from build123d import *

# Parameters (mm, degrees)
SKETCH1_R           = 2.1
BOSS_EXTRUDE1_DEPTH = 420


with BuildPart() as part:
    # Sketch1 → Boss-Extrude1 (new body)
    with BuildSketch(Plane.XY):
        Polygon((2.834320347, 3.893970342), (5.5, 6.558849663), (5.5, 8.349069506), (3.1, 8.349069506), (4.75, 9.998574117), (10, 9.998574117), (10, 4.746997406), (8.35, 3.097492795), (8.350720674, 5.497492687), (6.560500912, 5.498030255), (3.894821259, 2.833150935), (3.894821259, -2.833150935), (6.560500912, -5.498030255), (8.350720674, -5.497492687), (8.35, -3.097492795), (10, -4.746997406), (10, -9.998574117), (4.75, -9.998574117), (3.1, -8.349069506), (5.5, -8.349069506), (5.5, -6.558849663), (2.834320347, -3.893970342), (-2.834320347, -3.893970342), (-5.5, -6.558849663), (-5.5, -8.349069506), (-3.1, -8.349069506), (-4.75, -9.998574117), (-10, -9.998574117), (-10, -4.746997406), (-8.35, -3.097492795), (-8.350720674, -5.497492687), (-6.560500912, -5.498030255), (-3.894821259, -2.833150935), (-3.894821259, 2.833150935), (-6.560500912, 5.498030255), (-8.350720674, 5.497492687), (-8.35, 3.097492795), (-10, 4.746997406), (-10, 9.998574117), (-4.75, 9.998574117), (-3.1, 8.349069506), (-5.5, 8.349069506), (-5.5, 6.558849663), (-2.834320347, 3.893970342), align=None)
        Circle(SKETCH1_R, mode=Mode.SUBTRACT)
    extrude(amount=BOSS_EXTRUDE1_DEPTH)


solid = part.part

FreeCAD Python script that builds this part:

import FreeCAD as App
import Part
import Sketcher

doc = App.newDocument("Part")
body = doc.addObject("PartDesign::Body", "Body")

# Sketch on XY plane
sketch1 = body.newObject("Sketcher::SketchObject", "Sketch")
sketch1.AttachmentSupport = (doc.getObject("XY_Plane"), [""])
sketch1.MapMode = "FlatFace"
sketch1.addGeometry(Part.LineSegment(App.Vector(5.5, 6.6, 0), App.Vector(2.8, 3.9, 0)), False)
sketch1.addGeometry(Part.LineSegment(App.Vector(2.8, 3.9, 0), App.Vector(-2.8, 3.9, 0)), False)
sketch1.addGeometry(Part.LineSegment(App.Vector(-2.8, 3.9, 0), App.Vector(-5.5, 6.6, 0)), False)
sketch1.addGeometry(Part.LineSegment(App.Vector(-5.5, 6.6, 0), App.Vector(-5.5, 8.3, 0)), False)
sketch1.addGeometry(Part.LineSegment(App.Vector(-5.5, 8.3, 0), App.Vector(-3.1, 8.3, 0)), False)
sketch1.addGeometry(Part.LineSegment(App.Vector(-3.1, 8.3, 0), App.Vector(-4.8, 10, 0)), False)
sketch1.addGeometry(Part.LineSegment(App.Vector(-4.8, 10, 0), App.Vector(-10, 10, 0)), False)
sketch1.addGeometry(Part.LineSegment(App.Vector(-10, 10, 0), App.Vector(-10, 4.7, 0)), False)
sketch1.addGeometry(Part.LineSegment(App.Vector(-10, 4.7, 0), App.Vector(-8.3, 3.1, 0)), False)
sketch1.addGeometry(Part.LineSegment(App.Vector(-8.3, 3.1, 0), App.Vector(-8.4, 5.5, 0)), False)
sketch1.addGeometry(Part.LineSegment(App.Vector(-8.4, 5.5, 0), App.Vector(-6.6, 5.5, 0)), False)
sketch1.addGeometry(Part.LineSegment(App.Vector(-6.6, 5.5, 0), App.Vector(-3.9, 2.8, 0)), False)
sketch1.addGeometry(Part.LineSegment(App.Vector(-3.9, 2.8, 0), App.Vector(-3.9, -2.8, 0)), False)
sketch1.addGeometry(Part.LineSegment(App.Vector(-3.9, -2.8, 0), App.Vector(-6.6, -5.5, 0)), False)
sketch1.addGeometry(Part.LineSegment(App.Vector(-6.6, -5.5, 0), App.Vector(-8.4, -5.5, 0)), False)
sketch1.addGeometry(Part.LineSegment(App.Vector(-8.4, -5.5, 0), App.Vector(-8.3, -3.1, 0)), False)
sketch1.addGeometry(Part.LineSegment(App.Vector(-8.3, -3.1, 0), App.Vector(-10, -4.7, 0)), False)
sketch1.addGeometry(Part.LineSegment(App.Vector(-10, -4.7, 0), App.Vector(-10, -10, 0)), False)
sketch1.addGeometry(Part.LineSegment(App.Vector(-10, -10, 0), App.Vector(-4.8, -10, 0)), False)
sketch1.addGeometry(Part.LineSegment(App.Vector(-4.8, -10, 0), App.Vector(-3.1, -8.3, 0)), False)
sketch1.addGeometry(Part.LineSegment(App.Vector(-3.1, -8.3, 0), App.Vector(-5.5, -8.3, 0)), False)
sketch1.addGeometry(Part.LineSegment(App.Vector(-5.5, -8.3, 0), App.Vector(-5.5, -6.6, 0)), False)
sketch1.addGeometry(Part.LineSegment(App.Vector(-5.5, -6.6, 0), App.Vector(-2.8, -3.9, 0)), False)
sketch1.addGeometry(Part.LineSegment(App.Vector(-2.8, -3.9, 0), App.Vector(2.8, -3.9, 0)), False)
sketch1.addGeometry(Part.LineSegment(App.Vector(2.8, -3.9, 0), App.Vector(5.5, -6.6, 0)), False)
sketch1.addGeometry(Part.LineSegment(App.Vector(5.5, -6.6, 0), App.Vector(5.5, -8.3, 0)), False)
sketch1.addGeometry(Part.LineSegment(App.Vector(5.5, -8.3, 0), App.Vector(3.1, -8.3, 0)), False)
sketch1.addGeometry(Part.LineSegment(App.Vector(3.1, -8.3, 0), App.Vector(4.8, -10, 0)), False)
sketch1.addGeometry(Part.LineSegment(App.Vector(4.8, -10, 0), App.Vector(10, -10, 0)), False)
sketch1.addGeometry(Part.LineSegment(App.Vector(10, -10, 0), App.Vector(10, -4.7, 0)), False)
sketch1.addGeometry(Part.LineSegment(App.Vector(10, -4.7, 0), App.Vector(8.3, -3.1, 0)), False)
sketch1.addGeometry(Part.LineSegment(App.Vector(8.3, -3.1, 0), App.Vector(8.4, -5.5, 0)), False)
sketch1.addGeometry(Part.LineSegment(App.Vector(8.4, -5.5, 0), App.Vector(6.6, -5.5, 0)), False)
sketch1.addGeometry(Part.LineSegment(App.Vector(6.6, -5.5, 0), App.Vector(3.9, -2.8, 0)), False)
sketch1.addGeometry(Part.LineSegment(App.Vector(3.9, -2.8, 0), App.Vector(3.9, 2.8, 0)), False)
sketch1.addGeometry(Part.LineSegment(App.Vector(3.9, 2.8, 0), App.Vector(6.6, 5.5, 0)), False)
sketch1.addGeometry(Part.LineSegment(App.Vector(6.6, 5.5, 0), App.Vector(8.4, 5.5, 0)), False)
sketch1.addGeometry(Part.LineSegment(App.Vector(8.4, 5.5, 0), App.Vector(8.3, 3.1, 0)), False)
sketch1.addGeometry(Part.LineSegment(App.Vector(8.3, 3.1, 0), App.Vector(10, 4.7, 0)), False)
sketch1.addGeometry(Part.LineSegment(App.Vector(10, 4.7, 0), App.Vector(10, 10, 0)), False)
sketch1.addGeometry(Part.LineSegment(App.Vector(10, 10, 0), App.Vector(4.8, 10, 0)), False)
sketch1.addGeometry(Part.LineSegment(App.Vector(4.8, 10, 0), App.Vector(3.1, 8.3, 0)), False)
sketch1.addGeometry(Part.LineSegment(App.Vector(3.1, 8.3, 0), App.Vector(5.5, 8.3, 0)), False)
sketch1.addGeometry(Part.LineSegment(App.Vector(5.5, 8.3, 0), App.Vector(5.5, 6.6, 0)), False)
sketch1.addGeometry(Part.Circle(App.Vector(0, 0, 0), App.Vector(0, 0, 1), 2.1), False)
sketch1.addConstraint(Sketcher.Constraint("Coincident", 0, 2, 1, 1))
sketch1.addConstraint(Sketcher.Constraint("Coincident", 1, 2, 2, 1))
sketch1.addConstraint(Sketcher.Constraint("Coincident", 2, 2, 3, 1))
sketch1.addConstraint(Sketcher.Constraint("Coincident", 3, 2, 4, 1))
sketch1.addConstraint(Sketcher.Constraint("Coincident", 4, 2, 5, 1))
sketch1.addConstraint(Sketcher.Constraint("Coincident", 5, 2, 6, 1))
sketch1.addConstraint(Sketcher.Constraint("Coincident", 6, 2, 7, 1))
sketch1.addConstraint(Sketcher.Constraint("Coincident", 7, 2, 8, 1))
sketch1.addConstraint(Sketcher.Constraint("Coincident", 8, 2, 9, 1))
sketch1.addConstraint(Sketcher.Constraint("Coincident", 9, 2, 10, 1))
sketch1.addConstraint(Sketcher.Constraint("Coincident", 10, 2, 11, 1))
sketch1.addConstraint(Sketcher.Constraint("Coincident", 11, 2, 12, 1))
sketch1.addConstraint(Sketcher.Constraint("Coincident", 12, 2, 13, 1))
sketch1.addConstraint(Sketcher.Constraint("Coincident", 13, 2, 14, 1))
sketch1.addConstraint(Sketcher.Constraint("Coincident", 14, 2, 15, 1))
sketch1.addConstraint(Sketcher.Constraint("Coincident", 15, 2, 16, 1))
sketch1.addConstraint(Sketcher.Constraint("Coincident", 16, 2, 17, 1))
sketch1.addConstraint(Sketcher.Constraint("Coincident", 17, 2, 18, 1))
sketch1.addConstraint(Sketcher.Constraint("Coincident", 18, 2, 19, 1))
sketch1.addConstraint(Sketcher.Constraint("Coincident", 19, 2, 20, 1))
sketch1.addConstraint(Sketcher.Constraint("Coincident", 20, 2, 21, 1))
sketch1.addConstraint(Sketcher.Constraint("Coincident", 21, 2, 22, 1))
sketch1.addConstraint(Sketcher.Constraint("Coincident", 22, 2, 23, 1))
sketch1.addConstraint(Sketcher.Constraint("Coincident", 23, 2, 24, 1))
sketch1.addConstraint(Sketcher.Constraint("Coincident", 24, 2, 25, 1))
sketch1.addConstraint(Sketcher.Constraint("Coincident", 25, 2, 26, 1))
sketch1.addConstraint(Sketcher.Constraint("Coincident", 26, 2, 27, 1))
sketch1.addConstraint(Sketcher.Constraint("Coincident", 27, 2, 28, 1))
sketch1.addConstraint(Sketcher.Constraint("Coincident", 28, 2, 29, 1))
sketch1.addConstraint(Sketcher.Constraint("Coincident", 29, 2, 30, 1))
sketch1.addConstraint(Sketcher.Constraint("Coincident", 30, 2, 31, 1))
sketch1.addConstraint(Sketcher.Constraint("Coincident", 31, 2, 32, 1))
sketch1.addConstraint(Sketcher.Constraint("Coincident", 32, 2, 33, 1))
sketch1.addConstraint(Sketcher.Constraint("Coincident", 33, 2, 34, 1))
sketch1.addConstraint(Sketcher.Constraint("Coincident", 34, 2, 35, 1))
sketch1.addConstraint(Sketcher.Constraint("Coincident", 35, 2, 36, 1))
sketch1.addConstraint(Sketcher.Constraint("Coincident", 36, 2, 37, 1))
sketch1.addConstraint(Sketcher.Constraint("Coincident", 37, 2, 38, 1))
sketch1.addConstraint(Sketcher.Constraint("Coincident", 38, 2, 39, 1))
sketch1.addConstraint(Sketcher.Constraint("Coincident", 39, 2, 40, 1))
sketch1.addConstraint(Sketcher.Constraint("Coincident", 40, 2, 41, 1))
sketch1.addConstraint(Sketcher.Constraint("Coincident", 41, 2, 42, 1))
sketch1.addConstraint(Sketcher.Constraint("Coincident", 42, 2, 43, 1))
sketch1.addConstraint(Sketcher.Constraint("Coincident", 43, 2, 0, 1))
sketch1.addConstraint(Sketcher.Constraint("Horizontal", 1))
sketch1.addConstraint(Sketcher.Constraint("Vertical", 3))
sketch1.addConstraint(Sketcher.Constraint("Horizontal", 4))
sketch1.addConstraint(Sketcher.Constraint("Horizontal", 6))
sketch1.addConstraint(Sketcher.Constraint("Vertical", 7))
sketch1.addConstraint(Sketcher.Constraint("Vertical", 12))
sketch1.addConstraint(Sketcher.Constraint("Vertical", 17))
sketch1.addConstraint(Sketcher.Constraint("Horizontal", 18))
sketch1.addConstraint(Sketcher.Constraint("Horizontal", 20))
sketch1.addConstraint(Sketcher.Constraint("Vertical", 21))
sketch1.addConstraint(Sketcher.Constraint("Horizontal", 23))
sketch1.addConstraint(Sketcher.Constraint("Vertical", 25))
sketch1.addConstraint(Sketcher.Constraint("Horizontal", 26))
sketch1.addConstraint(Sketcher.Constraint("Horizontal", 28))
sketch1.addConstraint(Sketcher.Constraint("Vertical", 29))
sketch1.addConstraint(Sketcher.Constraint("Vertical", 34))
sketch1.addConstraint(Sketcher.Constraint("Vertical", 39))
sketch1.addConstraint(Sketcher.Constraint("Horizontal", 40))
sketch1.addConstraint(Sketcher.Constraint("Horizontal", 42))
sketch1.addConstraint(Sketcher.Constraint("Vertical", 43))
sketch1.addConstraint(Sketcher.Constraint("Coincident", 44, 3, -1, 1))
sketch1.addConstraint(Sketcher.Constraint("Symmetric", 0, 2, 22, 2, -1, 1))
sketch1.addConstraint(Sketcher.Constraint("Symmetric", 2, 2, 24, 2, -1, 1))
sketch1.addConstraint(Sketcher.Constraint("Symmetric", 4, 2, 26, 2, -1, 1))
sketch1.addConstraint(Sketcher.Constraint("Symmetric", 5, 2, 27, 2, -1, 1))
sketch1.addConstraint(Sketcher.Constraint("Symmetric", 7, 2, 29, 2, -1, 1))
sketch1.addConstraint(Sketcher.Constraint("Symmetric", 8, 2, 30, 2, -1, 1))
sketch1.addConstraint(Sketcher.Constraint("Symmetric", 9, 2, 31, 2, -1, 1))
sketch1.addConstraint(Sketcher.Constraint("Symmetric", 10, 2, 32, 2, -1, 1))
sketch1.addConstraint(Sketcher.Constraint("Symmetric", 11, 2, 33, 2, -1, 1))
sketch1.addConstraint(Sketcher.Constraint("Symmetric", 13, 2, 35, 2, -1, 1))
sketch1.addConstraint(Sketcher.Constraint("Symmetric", 14, 2, 36, 2, -1, 1))
sketch1.addConstraint(Sketcher.Constraint("Symmetric", 15, 2, 37, 2, -1, 1))
sketch1.addConstraint(Sketcher.Constraint("Symmetric", 16, 2, 38, 2, -1, 1))
sketch1.addConstraint(Sketcher.Constraint("Symmetric", 18, 2, 40, 2, -1, 1))
sketch1.addConstraint(Sketcher.Constraint("Symmetric", 19, 2, 41, 2, -1, 1))
sketch1.addConstraint(Sketcher.Constraint("Symmetric", 21, 2, 43, 2, -1, 1))
sketch1.addConstraint(Sketcher.Constraint("Symmetric", 21, 2, 24, 2, -2))
sketch1.addConstraint(Sketcher.Constraint("Symmetric", 19, 2, 26, 2, -2))
sketch1.addConstraint(Sketcher.Constraint("Symmetric", 18, 2, 27, 2, -2))
sketch1.addConstraint(Sketcher.Constraint("Symmetric", 16, 2, 29, 2, -2))
sketch1.addConstraint(Sketcher.Constraint("Symmetric", 15, 2, 30, 2, -2))
sketch1.addConstraint(Sketcher.Constraint("Symmetric", 14, 2, 31, 2, -2))
sketch1.addConstraint(Sketcher.Constraint("Symmetric", 13, 2, 32, 2, -2))
sketch1.addConstraint(Sketcher.Constraint("Parallel", 2, 5))
sketch1.addConstraint(Sketcher.Constraint("Parallel", 5, 8))
sketch1.addConstraint(Sketcher.Constraint("Perpendicular", 9, 10))
sketch1.addConstraint(Sketcher.Constraint("Parallel", 8, 11))
sketch1.addConstraint(Sketcher.Constraint("Parallel", 0, 13))
sketch1.addConstraint(Sketcher.Constraint("Parallel", 13, 16))
sketch1.addConstraint(Sketcher.Constraint("Parallel", 11, 24))
sketch1.addConstraint(Sketcher.Constraint("Parallel", 22, 35))
sketch1.addConstraint(Sketcher.Constraint("Equal", 5, 8))
sketch1.addConstraint(Sketcher.Constraint("Equal", 2, 11))
sketch1.addConstraint(Sketcher.Constraint("Diameter", 44, 4.2))
sketch1.addConstraint(Sketcher.Constraint("DistanceX", 4, 1, 4, 2, 2.4))
sketch1.addConstraint(Sketcher.Constraint("DistanceX", 6, 2, -1, 1, 10.0))
sketch1.addConstraint(Sketcher.Constraint("Distance", 9, 2.4))
sketch1.addConstraint(Sketcher.Constraint("DistanceX", 6, 2, 6, 1, 5.25))
sketch1.addConstraint(Sketcher.Constraint("DistanceX", 2, 2, -1, 1, 5.5))
sketch1.addConstraint(Sketcher.Constraint("DistanceY", 12, 2, 12, 1, 5.666302))
sketch1.addConstraint(Sketcher.Constraint("DistanceY", 13, 2, 1, 2, 9.392001))
sketch1.addConstraint(Sketcher.Constraint("DistanceX", 1, 2, 1, 1, 5.668641))
sketch1.addConstraint(Sketcher.Constraint("DistanceY", 3, 1, 3, 2, 1.79022))
sketch1.addConstraint(Sketcher.Constraint("DistanceX", 10, 2, -1, 1, 6.560501))
sketch1.addConstraint(Sketcher.Constraint("DistanceY", 1, 2, 3, 2, 4.455099))
sketch1.addConstraint(Sketcher.Constraint("DistanceX", 14, 2, 12, 2, 4.455899))
pad1 = body.newObject("PartDesign::Pad", "Pad")
pad1.Profile = sketch1
pad1.Length = 420

doc.recompute()
